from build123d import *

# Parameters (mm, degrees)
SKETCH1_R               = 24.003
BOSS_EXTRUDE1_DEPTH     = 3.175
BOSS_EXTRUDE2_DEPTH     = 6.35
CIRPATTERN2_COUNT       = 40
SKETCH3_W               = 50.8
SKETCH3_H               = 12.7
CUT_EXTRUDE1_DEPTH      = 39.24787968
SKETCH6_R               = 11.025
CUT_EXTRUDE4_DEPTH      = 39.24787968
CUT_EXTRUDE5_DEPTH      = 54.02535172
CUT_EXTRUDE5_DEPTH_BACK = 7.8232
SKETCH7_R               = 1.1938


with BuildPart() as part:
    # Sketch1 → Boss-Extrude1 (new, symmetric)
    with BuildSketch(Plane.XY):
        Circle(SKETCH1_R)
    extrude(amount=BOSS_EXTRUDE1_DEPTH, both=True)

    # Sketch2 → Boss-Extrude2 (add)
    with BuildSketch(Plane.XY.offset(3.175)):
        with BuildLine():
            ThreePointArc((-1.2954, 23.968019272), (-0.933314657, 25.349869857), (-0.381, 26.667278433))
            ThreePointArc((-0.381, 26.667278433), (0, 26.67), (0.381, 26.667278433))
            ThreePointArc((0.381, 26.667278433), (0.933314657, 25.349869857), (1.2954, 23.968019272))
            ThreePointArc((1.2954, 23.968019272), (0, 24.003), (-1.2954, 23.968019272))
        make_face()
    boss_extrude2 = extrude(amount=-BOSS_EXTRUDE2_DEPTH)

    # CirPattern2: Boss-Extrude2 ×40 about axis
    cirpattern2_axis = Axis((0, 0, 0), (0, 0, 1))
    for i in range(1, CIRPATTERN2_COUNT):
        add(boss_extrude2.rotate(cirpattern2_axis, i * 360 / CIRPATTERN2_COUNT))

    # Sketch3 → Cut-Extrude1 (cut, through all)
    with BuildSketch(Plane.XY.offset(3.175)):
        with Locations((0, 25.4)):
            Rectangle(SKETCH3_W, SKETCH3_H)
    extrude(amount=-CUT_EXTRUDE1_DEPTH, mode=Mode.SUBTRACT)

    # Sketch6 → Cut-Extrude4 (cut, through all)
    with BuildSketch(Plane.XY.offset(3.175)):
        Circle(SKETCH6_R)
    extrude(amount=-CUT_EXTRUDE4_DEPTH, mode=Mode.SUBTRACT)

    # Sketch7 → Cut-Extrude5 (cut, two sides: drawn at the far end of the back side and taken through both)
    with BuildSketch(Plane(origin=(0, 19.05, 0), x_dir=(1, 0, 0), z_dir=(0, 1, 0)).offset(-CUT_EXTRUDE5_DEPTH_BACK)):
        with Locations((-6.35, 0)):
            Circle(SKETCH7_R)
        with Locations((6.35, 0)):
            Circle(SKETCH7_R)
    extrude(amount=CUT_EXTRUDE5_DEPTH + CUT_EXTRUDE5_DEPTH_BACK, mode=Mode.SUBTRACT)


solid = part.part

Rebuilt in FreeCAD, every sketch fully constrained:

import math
import FreeCAD as App
import Part
import Sketcher
Q = App.Units.Quantity


def add_polygon(sketch, points):
    """Adds a closed chain of lines whose ends are joined by coincident constraints."""
    first, n = sketch.GeometryCount, len(points)
    for a, b in zip(points, points[1:] + points[:1]):
        sketch.addGeometry(Part.LineSegment(App.Vector(*a, 0), App.Vector(*b, 0)), False)
    for i in range(n):
        sketch.addConstraint(Sketcher.Constraint("Coincident", first + i, 2, first + (i + 1) % n, 1))

doc = App.newDocument("Part")
body = doc.addObject("PartDesign::Body", "Body")

# Sketch on XY plane
sketch1 = body.newObject("Sketcher::SketchObject", "Sketch")
sketch1.AttachmentSupport = (doc.getObject("XY_Plane"), [""])
sketch1.MapMode = "FlatFace"
sketch1.addGeometry(Part.Circle(App.Vector(0, 0, 0), App.Vector(0, 0, 1), 24), False)
sketch1.addConstraint(Sketcher.Constraint("Coincident", 0, 3, -1, 1))
sketch1.addConstraint(Sketcher.Constraint("Diameter", 0, Q("1.89 in")))
pad1 = body.newObject("PartDesign::Pad", "Pad")
pad1.Profile = sketch1
pad1.Length = Q("0.25 in")
pad1.Midplane = True

# Sketch on XY plane
sketch2 = body.newObject("Sketcher::SketchObject", "Sketch001")
sketch2.AttachmentSupport = (doc.getObject("XY_Plane"), [""])
sketch2.MapMode = "FlatFace"
sketch2.AttachmentOffset = App.Placement(App.Vector(0, 0, 0.125 * 25.4), App.Rotation())
sketch2.addGeometry(Part.ArcOfCircle(Part.Circle(App.Vector(8.7, 22.1, 0), App.Vector(0, 0, 1), 10.2), math.radians(153.22), math.radians(169.35)), False)
sketch2.addGeometry(Part.ArcOfCircle(Part.Circle(App.Vector(0, 0, 0), App.Vector(0, 0, 1), 24), math.radians(86.91), math.radians(93.09)), False)
sketch2.addGeometry(Part.ArcOfCircle(Part.Circle(App.Vector(-8.7, 22.1, 0), App.Vector(0, 0, 1), 10.2), math.radians(10.65), math.radians(26.78)), False)
sketch2.addGeometry(Part.ArcOfCircle(Part.Circle(App.Vector(0, 0, 0), App.Vector(0, 0, 1), 26.7), math.radians(89.18), math.radians(90.82)), False)
sketch2.addConstraint(Sketcher.Constraint("Coincident", 0, 2, 1, 2))
sketch2.addConstraint(Sketcher.Constraint("Coincident", 1, 1, 2, 1))
sketch2.addConstraint(Sketcher.Constraint("Coincident", 2, 2, 3, 1))
sketch2.addConstraint(Sketcher.Constraint("Coincident", 3, 2, 0, 1))
sketch2.addConstraint(Sketcher.Constraint("Coincident", 1, 3, -1, 1))
sketch2.addConstraint(Sketcher.Constraint("Coincident", 3, 3, -1, 1))
sketch2.addConstraint(Sketcher.Constraint("Equal", 0, 2))
sketch2.addConstraint(Sketcher.Constraint("Symmetric", 0, 3, 2, 3, -2))
sketch2.addConstraint(Sketcher.Constraint("Radius", 0, Q("0.4 in")))
sketch2.addConstraint(Sketcher.Constraint("Radius", 3, Q("1.0500002 in")))
sketch2.addConstraint(Sketcher.Constraint("Radius", 1, Q("0.945 in")))
sketch2.addConstraint(Sketcher.Constraint("DistanceX", 3, 2, 2, 2, Q("0.03 in")))
sketch2.addConstraint(Sketcher.Constraint("DistanceX", 0, 2, -1, 1, Q("0.051 in")))
pad2 = body.newObject("PartDesign::Pad", "Pad001")
pad2.Profile = sketch2
pad2.Length = Q("0.25 in")
pad2.Reversed = True
doc.recompute()

polarpattern = body.newObject("PartDesign::PolarPattern", "PolarPattern")
polarpattern.Originals = [pad2]
polarpattern.Axis = (doc.getObject("Z_Axis"), [""])
polarpattern.Angle = 360
polarpattern.Occurrences = 40
body.Tip = polarpattern

# Sketch on XY plane
sketch3 = body.newObject("Sketcher::SketchObject", "Sketch002")
sketch3.AttachmentSupport = (doc.getObject("XY_Plane"), [""])
sketch3.MapMode = "FlatFace"
sketch3.AttachmentOffset = App.Placement(App.Vector(0, 0, 0.125 * 25.4), App.Rotation())
add_polygon(sketch3, [(-25, 32), (-25, 19), (25, 19), (25, 32)])  # lines 0-3
sketch3.addConstraint(Sketcher.Constraint("Vertical", 0))
sketch3.addConstraint(Sketcher.Constraint("Horizontal", 1))
sketch3.addConstraint(Sketcher.Constraint("Vertical", 2))
sketch3.addConstraint(Sketcher.Constraint("Horizontal", 3))
sketch3.addConstraint(Sketcher.Constraint("DistanceX", 1, 1, 1, 2, Q("2 in")))
sketch3.addConstraint(Sketcher.Constraint("DistanceY", 0, 2, 0, 1, Q("0.5 in")))
sketch3.addConstraint(Sketcher.Constraint("DistanceX", 0, 2, -1, 1, Q("1 in")))
sketch3.addConstraint(Sketcher.Constraint("DistanceY", -1, 1, 0, 2, Q("0.75 in")))
pocket1 = body.newObject("PartDesign::Pocket", "Pocket")
pocket1.Profile = sketch3
pocket1.Type = "ThroughAll"

# Sketch on XY plane
sketch4 = body.newObject("Sketcher::SketchObject", "Sketch003")
sketch4.AttachmentSupport = (doc.getObject("XY_Plane"), [""])
sketch4.MapMode = "FlatFace"
sketch4.AttachmentOffset = App.Placement(App.Vector(0, 0, 0.125 * 25.4), App.Rotation())
sketch4.addGeometry(Part.Circle(App.Vector(0, 0, 0), App.Vector(0, 0, 1), 11), False)
sketch4.addConstraint(Sketcher.Constraint("Coincident", 0, 3, -1, 1))
sketch4.addConstraint(Sketcher.Constraint("Diameter", 0, 22.05))
pocket2 = body.newObject("PartDesign::Pocket", "Pocket001")
pocket2.Profile = sketch4
pocket2.Type = "ThroughAll"

# Sketch on XZ plane
sketch5 = body.newObject("Sketcher::SketchObject", "Sketch004")
sketch5.AttachmentSupport = (doc.getObject("XZ_Plane"), [""])
sketch5.MapMode = "FlatFace"
sketch5.AttachmentOffset = App.Placement(App.Vector(0, 0, -0.75 * 25.4), App.Rotation())
sketch5.addGeometry(Part.Circle(App.Vector(-6.3, 0, 0), App.Vector(0, 0, 1), 1.2), False)
sketch5.addGeometry(Part.Circle(App.Vector(6.3, 0, 0), App.Vector(0, 0, 1), 1.2), False)
sketch5.addConstraint(Sketcher.Constraint("Equal", 0, 1))
sketch5.addConstraint(Sketcher.Constraint("Symmetric", 0, 3, 1, 3, -1, 1))
sketch5.addConstraint(Sketcher.Constraint("PointOnObject", 0, 3, -1))
sketch5.addConstraint(Sketcher.Constraint("Diameter", 0, Q("0.094 in")))
sketch5.addConstraint(Sketcher.Constraint("DistanceX", 0, 3, 1, 3, Q("0.5 in")))
pocket3 = body.newObject("PartDesign::Pocket", "Pocket002")
pocket3.Profile = sketch5
pocket3.Type = "TwoLengths"
pocket3.Length = 54.025352
pocket3.Length2 = Q("0.308 in")

doc.recompute()
